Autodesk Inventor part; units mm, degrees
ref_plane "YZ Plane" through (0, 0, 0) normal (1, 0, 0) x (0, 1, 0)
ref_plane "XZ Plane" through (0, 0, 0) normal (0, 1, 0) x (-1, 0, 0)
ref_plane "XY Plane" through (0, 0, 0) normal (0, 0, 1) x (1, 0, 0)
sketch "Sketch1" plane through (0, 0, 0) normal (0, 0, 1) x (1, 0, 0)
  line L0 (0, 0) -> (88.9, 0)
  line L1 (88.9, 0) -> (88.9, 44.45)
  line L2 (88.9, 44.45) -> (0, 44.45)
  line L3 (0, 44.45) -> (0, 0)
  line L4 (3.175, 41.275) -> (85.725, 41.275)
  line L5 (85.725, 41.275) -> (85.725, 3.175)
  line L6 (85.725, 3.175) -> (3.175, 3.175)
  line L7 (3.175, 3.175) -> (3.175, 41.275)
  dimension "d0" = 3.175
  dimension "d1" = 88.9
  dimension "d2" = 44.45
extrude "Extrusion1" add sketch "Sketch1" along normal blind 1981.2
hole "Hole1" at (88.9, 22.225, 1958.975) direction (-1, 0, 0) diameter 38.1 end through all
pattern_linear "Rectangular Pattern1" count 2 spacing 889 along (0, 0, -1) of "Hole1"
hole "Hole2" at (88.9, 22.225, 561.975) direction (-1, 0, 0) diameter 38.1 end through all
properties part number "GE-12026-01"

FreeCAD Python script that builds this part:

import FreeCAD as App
import Part
import Sketcher
Q = App.Units.Quantity


def add_polygon(sketch, points):
    """Adds a closed chain of lines whose ends are joined by coincident constraints."""
    first, n = sketch.GeometryCount, len(points)
    for a, b in zip(points, points[1:] + points[:1]):
        sketch.addGeometry(Part.LineSegment(App.Vector(*a, 0), App.Vector(*b, 0)), False)
    for i in range(n):
        sketch.addConstraint(Sketcher.Constraint("Coincident", first + i, 2, first + (i + 1) % n, 1))

doc = App.newDocument("Part")
body = doc.addObject("PartDesign::Body", "Body")

# Sketch on XY plane
sketch1 = body.newObject("Sketcher::SketchObject", "Sketch")
sketch1.AttachmentSupport = (doc.getObject("XY_Plane"), [""])
sketch1.MapMode = "FlatFace"
add_polygon(sketch1, [(0, 44), (0, 0), (89, 0), (89, 44)])  # lines 0-3
add_polygon(sketch1, [(3, 3), (3, 41), (86, 41), (86, 3)])  # lines 4-7
sketch1.addConstraint([
    Sketcher.Constraint("Vertical", 0),
    Sketcher.Constraint("Horizontal", 1),
    Sketcher.Constraint("Vertical", 2),
    Sketcher.Constraint("Horizontal", 3),
    Sketcher.Constraint("Vertical", 4),
    Sketcher.Constraint("Horizontal", 5),
    Sketcher.Constraint("Vertical", 6),
    Sketcher.Constraint("Horizontal", 7),
    Sketcher.Constraint("Coincident", 0, 2, -1, 1),
    Sketcher.Constraint("DistanceX", 1, 1, 1, 2, Q("3.5 in")),
    Sketcher.Constraint("DistanceY", 0, 2, 0, 1, Q("1.75 in")),
    Sketcher.Constraint("DistanceY", 4, 1, 4, 2, Q("1.5 in")),
    Sketcher.Constraint("DistanceX", -1, 1, 4, 2, Q("0.125 in")),
    Sketcher.Constraint("DistanceY", -1, 1, 6, 2, Q("0.125 in")),
    Sketcher.Constraint("DistanceX", 5, 2, 2, 2, Q("0.125 in")),
])
pad1 = body.newObject("PartDesign::Pad", "Pad")
pad1.Profile = sketch1
pad1.Length = Q("78 in")

# Sketch on YZ plane
sketch2 = body.newObject("Sketcher::SketchObject", "Sketch001")
sketch2.AttachmentSupport = (doc.getObject("YZ_Plane"), [""])
sketch2.MapMode = "FlatFace"
sketch2.AttachmentOffset = App.Placement(App.Vector(0, 0, 3.5 * 25.4), App.Rotation())
sketch2.addGeometry(Part.Circle(App.Vector(22, 1959, 0), App.Vector(0, 0, 1), 19), False)
sketch2.addConstraint([
    Sketcher.Constraint("Diameter", 0, Q("1.5 in")),
    Sketcher.Constraint("DistanceX", -1, 1, 0, 3, Q("0.875 in")),
    Sketcher.Constraint("DistanceY", -1, 1, 0, 3, Q("77.125 in")),
])
doc.recompute()
hole = body.newObject("PartDesign::Hole", "Hole")
hole.Profile = sketch2
hole.ThreadType = "None"
hole.Diameter = Q("1.5 in")
hole.DepthType = "ThroughAll"
doc.recompute()

linearpattern = body.newObject("PartDesign::LinearPattern", "LinearPattern")
linearpattern.Originals = [hole]
linearpattern.Direction = (doc.getObject("Z_Axis"), [""])
linearpattern.Mode = "offset"
linearpattern.Offset = Q("35 in")
linearpattern.Occurrences = 2
linearpattern.Reversed = True
body.Tip = linearpattern

# Sketch on YZ plane
sketch3 = body.newObject("Sketcher::SketchObject", "Sketch002")
sketch3.AttachmentSupport = (doc.getObject("YZ_Plane"), [""])
sketch3.MapMode = "FlatFace"
sketch3.AttachmentOffset = App.Placement(App.Vector(0, 0, 3.5 * 25.4), App.Rotation())
sketch3.addGeometry(Part.Circle(App.Vector(22, 562, 0), App.Vector(0, 0, 1), 19), False)
sketch3.addConstraint([
    Sketcher.Constraint("Diameter", 0, Q("1.5 in")),
    Sketcher.Constraint("DistanceX", -1, 1, 0, 3, Q("0.875 in")),
    Sketcher.Constraint("DistanceY", -1, 1, 0, 3, Q("22.125 in")),
])
doc.recompute()
hole2 = body.newObject("PartDesign::Hole", "Hole001")
hole2.Profile = sketch3
hole2.ThreadType = "None"
hole2.Diameter = Q("1.5 in")
hole2.DepthType = "ThroughAll"

doc.recompute()
